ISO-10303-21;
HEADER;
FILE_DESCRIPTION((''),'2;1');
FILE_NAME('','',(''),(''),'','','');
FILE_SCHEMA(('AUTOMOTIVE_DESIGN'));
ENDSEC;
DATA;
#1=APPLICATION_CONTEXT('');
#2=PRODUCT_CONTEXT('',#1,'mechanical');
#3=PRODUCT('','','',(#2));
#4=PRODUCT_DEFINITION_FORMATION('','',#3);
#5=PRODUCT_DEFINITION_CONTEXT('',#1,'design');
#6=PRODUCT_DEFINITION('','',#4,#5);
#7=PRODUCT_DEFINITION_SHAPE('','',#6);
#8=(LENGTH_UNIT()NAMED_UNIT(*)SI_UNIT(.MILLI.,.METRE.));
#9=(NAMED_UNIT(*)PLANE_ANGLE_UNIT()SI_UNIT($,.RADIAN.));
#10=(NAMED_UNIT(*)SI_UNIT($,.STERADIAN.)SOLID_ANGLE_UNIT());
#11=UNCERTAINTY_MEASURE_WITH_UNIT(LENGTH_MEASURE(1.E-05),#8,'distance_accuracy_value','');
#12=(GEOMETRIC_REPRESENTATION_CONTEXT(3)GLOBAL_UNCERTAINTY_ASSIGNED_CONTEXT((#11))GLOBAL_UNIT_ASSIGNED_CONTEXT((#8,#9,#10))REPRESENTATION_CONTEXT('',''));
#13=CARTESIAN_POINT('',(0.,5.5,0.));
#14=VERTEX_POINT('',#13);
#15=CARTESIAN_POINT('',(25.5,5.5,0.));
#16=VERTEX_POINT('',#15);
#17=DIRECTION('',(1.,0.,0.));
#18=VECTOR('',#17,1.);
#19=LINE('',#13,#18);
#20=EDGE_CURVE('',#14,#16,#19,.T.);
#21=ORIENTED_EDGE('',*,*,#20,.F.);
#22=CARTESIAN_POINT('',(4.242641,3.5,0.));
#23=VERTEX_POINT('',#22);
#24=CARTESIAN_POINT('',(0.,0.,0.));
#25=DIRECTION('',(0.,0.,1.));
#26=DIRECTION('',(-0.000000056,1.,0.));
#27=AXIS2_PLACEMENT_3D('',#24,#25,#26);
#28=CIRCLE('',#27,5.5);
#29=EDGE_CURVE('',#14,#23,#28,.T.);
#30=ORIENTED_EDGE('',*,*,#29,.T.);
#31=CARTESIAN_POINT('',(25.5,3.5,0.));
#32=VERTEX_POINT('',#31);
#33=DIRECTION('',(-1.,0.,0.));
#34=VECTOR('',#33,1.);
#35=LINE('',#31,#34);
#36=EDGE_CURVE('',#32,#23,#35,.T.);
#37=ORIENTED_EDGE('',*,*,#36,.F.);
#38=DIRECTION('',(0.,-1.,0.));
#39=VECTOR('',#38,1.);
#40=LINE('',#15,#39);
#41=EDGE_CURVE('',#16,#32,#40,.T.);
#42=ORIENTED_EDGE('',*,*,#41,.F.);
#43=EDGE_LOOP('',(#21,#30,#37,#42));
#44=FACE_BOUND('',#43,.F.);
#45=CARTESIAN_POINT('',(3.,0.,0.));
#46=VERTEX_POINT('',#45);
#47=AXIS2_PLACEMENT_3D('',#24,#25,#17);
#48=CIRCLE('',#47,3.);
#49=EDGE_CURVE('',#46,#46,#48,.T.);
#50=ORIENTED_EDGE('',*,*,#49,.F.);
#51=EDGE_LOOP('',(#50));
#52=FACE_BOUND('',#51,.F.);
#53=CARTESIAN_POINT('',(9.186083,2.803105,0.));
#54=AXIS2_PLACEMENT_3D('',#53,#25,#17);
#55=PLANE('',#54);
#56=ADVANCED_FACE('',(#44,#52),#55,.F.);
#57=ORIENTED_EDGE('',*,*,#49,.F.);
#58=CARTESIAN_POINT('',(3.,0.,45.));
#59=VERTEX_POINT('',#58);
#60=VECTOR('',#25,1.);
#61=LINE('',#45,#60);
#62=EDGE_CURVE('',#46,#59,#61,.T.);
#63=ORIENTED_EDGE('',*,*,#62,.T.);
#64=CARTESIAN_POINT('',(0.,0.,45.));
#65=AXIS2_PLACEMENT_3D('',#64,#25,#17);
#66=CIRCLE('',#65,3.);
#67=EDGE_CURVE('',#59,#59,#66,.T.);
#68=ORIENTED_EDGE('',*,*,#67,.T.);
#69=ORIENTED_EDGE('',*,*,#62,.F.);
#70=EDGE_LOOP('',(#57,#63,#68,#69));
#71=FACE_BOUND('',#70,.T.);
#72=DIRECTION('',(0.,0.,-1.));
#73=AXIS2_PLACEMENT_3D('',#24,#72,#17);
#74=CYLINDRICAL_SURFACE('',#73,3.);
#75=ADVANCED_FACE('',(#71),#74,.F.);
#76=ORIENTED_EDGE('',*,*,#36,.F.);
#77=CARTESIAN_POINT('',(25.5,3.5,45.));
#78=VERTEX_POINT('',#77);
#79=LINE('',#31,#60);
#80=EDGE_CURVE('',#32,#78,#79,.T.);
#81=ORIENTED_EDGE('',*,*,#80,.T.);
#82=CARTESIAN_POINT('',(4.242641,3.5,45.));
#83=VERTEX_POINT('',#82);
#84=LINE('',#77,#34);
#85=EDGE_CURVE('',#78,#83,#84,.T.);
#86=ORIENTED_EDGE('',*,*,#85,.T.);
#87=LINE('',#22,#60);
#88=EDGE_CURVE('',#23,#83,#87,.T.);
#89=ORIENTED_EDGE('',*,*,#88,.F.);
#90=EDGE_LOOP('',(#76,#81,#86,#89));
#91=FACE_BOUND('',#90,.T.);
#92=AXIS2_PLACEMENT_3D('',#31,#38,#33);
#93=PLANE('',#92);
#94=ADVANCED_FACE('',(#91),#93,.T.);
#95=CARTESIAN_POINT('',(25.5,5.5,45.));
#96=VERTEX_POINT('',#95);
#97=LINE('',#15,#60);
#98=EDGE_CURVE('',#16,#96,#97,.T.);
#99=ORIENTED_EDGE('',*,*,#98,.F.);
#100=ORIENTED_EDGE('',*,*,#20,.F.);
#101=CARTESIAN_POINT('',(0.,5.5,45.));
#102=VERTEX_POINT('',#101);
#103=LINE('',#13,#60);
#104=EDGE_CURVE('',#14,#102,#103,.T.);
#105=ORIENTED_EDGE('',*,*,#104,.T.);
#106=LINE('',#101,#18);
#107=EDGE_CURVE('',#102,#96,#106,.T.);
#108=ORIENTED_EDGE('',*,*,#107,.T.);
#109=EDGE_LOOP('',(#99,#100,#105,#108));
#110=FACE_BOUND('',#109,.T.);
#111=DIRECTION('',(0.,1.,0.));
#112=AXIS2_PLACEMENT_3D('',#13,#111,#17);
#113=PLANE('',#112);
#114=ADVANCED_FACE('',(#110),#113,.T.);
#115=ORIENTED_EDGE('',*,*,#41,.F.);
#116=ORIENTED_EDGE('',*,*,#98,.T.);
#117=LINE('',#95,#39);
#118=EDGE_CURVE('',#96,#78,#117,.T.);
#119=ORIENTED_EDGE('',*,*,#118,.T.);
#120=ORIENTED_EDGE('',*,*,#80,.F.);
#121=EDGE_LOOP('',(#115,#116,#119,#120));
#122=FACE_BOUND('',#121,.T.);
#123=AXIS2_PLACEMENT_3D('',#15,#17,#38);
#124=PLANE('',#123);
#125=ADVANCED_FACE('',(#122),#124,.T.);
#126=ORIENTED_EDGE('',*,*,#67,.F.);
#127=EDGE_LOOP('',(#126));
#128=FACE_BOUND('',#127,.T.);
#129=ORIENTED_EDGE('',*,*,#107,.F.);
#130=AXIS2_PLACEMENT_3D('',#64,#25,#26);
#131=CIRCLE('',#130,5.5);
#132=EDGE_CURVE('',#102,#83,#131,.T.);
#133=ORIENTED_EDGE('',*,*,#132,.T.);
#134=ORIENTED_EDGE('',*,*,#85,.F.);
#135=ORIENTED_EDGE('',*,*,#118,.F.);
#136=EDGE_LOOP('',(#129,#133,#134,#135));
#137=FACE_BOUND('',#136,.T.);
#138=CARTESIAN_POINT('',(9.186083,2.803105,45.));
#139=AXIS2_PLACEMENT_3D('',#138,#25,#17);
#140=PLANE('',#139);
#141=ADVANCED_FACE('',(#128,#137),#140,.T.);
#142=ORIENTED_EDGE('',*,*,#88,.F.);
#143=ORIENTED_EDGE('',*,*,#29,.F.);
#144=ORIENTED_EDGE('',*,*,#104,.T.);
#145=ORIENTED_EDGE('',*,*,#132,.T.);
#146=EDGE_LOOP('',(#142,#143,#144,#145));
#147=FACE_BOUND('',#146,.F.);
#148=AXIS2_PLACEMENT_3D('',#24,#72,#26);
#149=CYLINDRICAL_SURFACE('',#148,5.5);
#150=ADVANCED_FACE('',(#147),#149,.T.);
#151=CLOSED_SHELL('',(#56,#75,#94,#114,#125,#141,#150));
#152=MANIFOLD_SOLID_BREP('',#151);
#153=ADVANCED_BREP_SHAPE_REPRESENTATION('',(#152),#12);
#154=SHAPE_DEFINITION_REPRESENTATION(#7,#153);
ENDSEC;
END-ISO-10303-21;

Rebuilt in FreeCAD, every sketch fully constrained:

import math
import FreeCAD as App
import Part
import Sketcher
Q = App.Units.Quantity

doc = App.newDocument("Part")
body = doc.addObject("PartDesign::Body", "Body")

sketch1 = doc.addObject("Sketcher::SketchObject", "Sketch")
body.addObject(sketch1)
sketch1.AttachmentSupport = (doc.XY_Plane, [""])
sketch1.MapMode = "FlatFace"
sketch1.addGeometry(Part.ArcOfCircle(Part.Circle(App.Vector(0, 0, 0), App.Vector(0, 0, 1), 5.5), math.radians(90), math.radians(400)), False)
sketch1.addGeometry(Part.LineSegment(App.Vector(4.2, 3.5, 0), App.Vector(25.5, 3.5, 0)), False)
sketch1.addGeometry(Part.LineSegment(App.Vector(25.5, 3.5, 0), App.Vector(25.5, 5.5, 0)), False)
sketch1.addGeometry(Part.LineSegment(App.Vector(25.5, 5.5, 0), App.Vector(0, 5.5, 0)), False)
sketch1.addGeometry(Part.Circle(App.Vector(0, 0, 0), App.Vector(0, 0, 1), 3), False)
sketch1.addConstraint(Sketcher.Constraint("Coincident", 0, 2, 1, 1))
sketch1.addConstraint(Sketcher.Constraint("Coincident", 1, 2, 2, 1))
sketch1.addConstraint(Sketcher.Constraint("Coincident", 2, 2, 3, 1))
sketch1.addConstraint(Sketcher.Constraint("Tangent", 3, 2, 0, 1))
sketch1.addConstraint(Sketcher.Constraint("Horizontal", 1))
sketch1.addConstraint(Sketcher.Constraint("Vertical", 2))
sketch1.addConstraint(Sketcher.Constraint("Horizontal", 3))
sketch1.addConstraint(Sketcher.Constraint("Coincident", 0, 3, -1, 1))
sketch1.addConstraint(Sketcher.Constraint("Coincident", 4, 3, -1, 1))
sketch1.addConstraint(Sketcher.Constraint("Diameter", 4, Q("6 mm")))
sketch1.addConstraint(Sketcher.Constraint("Radius", 0, Q("5.5 mm")))
sketch1.addConstraint(Sketcher.Constraint("DistanceY", 2, 1, 2, 2, Q("2 mm")))
sketch1.addConstraint(Sketcher.Constraint("DistanceX", 3, 2, 3, 1, Q("25.5 mm")))
pad1 = doc.addObject("PartDesign::Pad", "Pad")
body.addObject(pad1)
pad1.Profile = sketch1
pad1.Length = 45

doc.recompute()
